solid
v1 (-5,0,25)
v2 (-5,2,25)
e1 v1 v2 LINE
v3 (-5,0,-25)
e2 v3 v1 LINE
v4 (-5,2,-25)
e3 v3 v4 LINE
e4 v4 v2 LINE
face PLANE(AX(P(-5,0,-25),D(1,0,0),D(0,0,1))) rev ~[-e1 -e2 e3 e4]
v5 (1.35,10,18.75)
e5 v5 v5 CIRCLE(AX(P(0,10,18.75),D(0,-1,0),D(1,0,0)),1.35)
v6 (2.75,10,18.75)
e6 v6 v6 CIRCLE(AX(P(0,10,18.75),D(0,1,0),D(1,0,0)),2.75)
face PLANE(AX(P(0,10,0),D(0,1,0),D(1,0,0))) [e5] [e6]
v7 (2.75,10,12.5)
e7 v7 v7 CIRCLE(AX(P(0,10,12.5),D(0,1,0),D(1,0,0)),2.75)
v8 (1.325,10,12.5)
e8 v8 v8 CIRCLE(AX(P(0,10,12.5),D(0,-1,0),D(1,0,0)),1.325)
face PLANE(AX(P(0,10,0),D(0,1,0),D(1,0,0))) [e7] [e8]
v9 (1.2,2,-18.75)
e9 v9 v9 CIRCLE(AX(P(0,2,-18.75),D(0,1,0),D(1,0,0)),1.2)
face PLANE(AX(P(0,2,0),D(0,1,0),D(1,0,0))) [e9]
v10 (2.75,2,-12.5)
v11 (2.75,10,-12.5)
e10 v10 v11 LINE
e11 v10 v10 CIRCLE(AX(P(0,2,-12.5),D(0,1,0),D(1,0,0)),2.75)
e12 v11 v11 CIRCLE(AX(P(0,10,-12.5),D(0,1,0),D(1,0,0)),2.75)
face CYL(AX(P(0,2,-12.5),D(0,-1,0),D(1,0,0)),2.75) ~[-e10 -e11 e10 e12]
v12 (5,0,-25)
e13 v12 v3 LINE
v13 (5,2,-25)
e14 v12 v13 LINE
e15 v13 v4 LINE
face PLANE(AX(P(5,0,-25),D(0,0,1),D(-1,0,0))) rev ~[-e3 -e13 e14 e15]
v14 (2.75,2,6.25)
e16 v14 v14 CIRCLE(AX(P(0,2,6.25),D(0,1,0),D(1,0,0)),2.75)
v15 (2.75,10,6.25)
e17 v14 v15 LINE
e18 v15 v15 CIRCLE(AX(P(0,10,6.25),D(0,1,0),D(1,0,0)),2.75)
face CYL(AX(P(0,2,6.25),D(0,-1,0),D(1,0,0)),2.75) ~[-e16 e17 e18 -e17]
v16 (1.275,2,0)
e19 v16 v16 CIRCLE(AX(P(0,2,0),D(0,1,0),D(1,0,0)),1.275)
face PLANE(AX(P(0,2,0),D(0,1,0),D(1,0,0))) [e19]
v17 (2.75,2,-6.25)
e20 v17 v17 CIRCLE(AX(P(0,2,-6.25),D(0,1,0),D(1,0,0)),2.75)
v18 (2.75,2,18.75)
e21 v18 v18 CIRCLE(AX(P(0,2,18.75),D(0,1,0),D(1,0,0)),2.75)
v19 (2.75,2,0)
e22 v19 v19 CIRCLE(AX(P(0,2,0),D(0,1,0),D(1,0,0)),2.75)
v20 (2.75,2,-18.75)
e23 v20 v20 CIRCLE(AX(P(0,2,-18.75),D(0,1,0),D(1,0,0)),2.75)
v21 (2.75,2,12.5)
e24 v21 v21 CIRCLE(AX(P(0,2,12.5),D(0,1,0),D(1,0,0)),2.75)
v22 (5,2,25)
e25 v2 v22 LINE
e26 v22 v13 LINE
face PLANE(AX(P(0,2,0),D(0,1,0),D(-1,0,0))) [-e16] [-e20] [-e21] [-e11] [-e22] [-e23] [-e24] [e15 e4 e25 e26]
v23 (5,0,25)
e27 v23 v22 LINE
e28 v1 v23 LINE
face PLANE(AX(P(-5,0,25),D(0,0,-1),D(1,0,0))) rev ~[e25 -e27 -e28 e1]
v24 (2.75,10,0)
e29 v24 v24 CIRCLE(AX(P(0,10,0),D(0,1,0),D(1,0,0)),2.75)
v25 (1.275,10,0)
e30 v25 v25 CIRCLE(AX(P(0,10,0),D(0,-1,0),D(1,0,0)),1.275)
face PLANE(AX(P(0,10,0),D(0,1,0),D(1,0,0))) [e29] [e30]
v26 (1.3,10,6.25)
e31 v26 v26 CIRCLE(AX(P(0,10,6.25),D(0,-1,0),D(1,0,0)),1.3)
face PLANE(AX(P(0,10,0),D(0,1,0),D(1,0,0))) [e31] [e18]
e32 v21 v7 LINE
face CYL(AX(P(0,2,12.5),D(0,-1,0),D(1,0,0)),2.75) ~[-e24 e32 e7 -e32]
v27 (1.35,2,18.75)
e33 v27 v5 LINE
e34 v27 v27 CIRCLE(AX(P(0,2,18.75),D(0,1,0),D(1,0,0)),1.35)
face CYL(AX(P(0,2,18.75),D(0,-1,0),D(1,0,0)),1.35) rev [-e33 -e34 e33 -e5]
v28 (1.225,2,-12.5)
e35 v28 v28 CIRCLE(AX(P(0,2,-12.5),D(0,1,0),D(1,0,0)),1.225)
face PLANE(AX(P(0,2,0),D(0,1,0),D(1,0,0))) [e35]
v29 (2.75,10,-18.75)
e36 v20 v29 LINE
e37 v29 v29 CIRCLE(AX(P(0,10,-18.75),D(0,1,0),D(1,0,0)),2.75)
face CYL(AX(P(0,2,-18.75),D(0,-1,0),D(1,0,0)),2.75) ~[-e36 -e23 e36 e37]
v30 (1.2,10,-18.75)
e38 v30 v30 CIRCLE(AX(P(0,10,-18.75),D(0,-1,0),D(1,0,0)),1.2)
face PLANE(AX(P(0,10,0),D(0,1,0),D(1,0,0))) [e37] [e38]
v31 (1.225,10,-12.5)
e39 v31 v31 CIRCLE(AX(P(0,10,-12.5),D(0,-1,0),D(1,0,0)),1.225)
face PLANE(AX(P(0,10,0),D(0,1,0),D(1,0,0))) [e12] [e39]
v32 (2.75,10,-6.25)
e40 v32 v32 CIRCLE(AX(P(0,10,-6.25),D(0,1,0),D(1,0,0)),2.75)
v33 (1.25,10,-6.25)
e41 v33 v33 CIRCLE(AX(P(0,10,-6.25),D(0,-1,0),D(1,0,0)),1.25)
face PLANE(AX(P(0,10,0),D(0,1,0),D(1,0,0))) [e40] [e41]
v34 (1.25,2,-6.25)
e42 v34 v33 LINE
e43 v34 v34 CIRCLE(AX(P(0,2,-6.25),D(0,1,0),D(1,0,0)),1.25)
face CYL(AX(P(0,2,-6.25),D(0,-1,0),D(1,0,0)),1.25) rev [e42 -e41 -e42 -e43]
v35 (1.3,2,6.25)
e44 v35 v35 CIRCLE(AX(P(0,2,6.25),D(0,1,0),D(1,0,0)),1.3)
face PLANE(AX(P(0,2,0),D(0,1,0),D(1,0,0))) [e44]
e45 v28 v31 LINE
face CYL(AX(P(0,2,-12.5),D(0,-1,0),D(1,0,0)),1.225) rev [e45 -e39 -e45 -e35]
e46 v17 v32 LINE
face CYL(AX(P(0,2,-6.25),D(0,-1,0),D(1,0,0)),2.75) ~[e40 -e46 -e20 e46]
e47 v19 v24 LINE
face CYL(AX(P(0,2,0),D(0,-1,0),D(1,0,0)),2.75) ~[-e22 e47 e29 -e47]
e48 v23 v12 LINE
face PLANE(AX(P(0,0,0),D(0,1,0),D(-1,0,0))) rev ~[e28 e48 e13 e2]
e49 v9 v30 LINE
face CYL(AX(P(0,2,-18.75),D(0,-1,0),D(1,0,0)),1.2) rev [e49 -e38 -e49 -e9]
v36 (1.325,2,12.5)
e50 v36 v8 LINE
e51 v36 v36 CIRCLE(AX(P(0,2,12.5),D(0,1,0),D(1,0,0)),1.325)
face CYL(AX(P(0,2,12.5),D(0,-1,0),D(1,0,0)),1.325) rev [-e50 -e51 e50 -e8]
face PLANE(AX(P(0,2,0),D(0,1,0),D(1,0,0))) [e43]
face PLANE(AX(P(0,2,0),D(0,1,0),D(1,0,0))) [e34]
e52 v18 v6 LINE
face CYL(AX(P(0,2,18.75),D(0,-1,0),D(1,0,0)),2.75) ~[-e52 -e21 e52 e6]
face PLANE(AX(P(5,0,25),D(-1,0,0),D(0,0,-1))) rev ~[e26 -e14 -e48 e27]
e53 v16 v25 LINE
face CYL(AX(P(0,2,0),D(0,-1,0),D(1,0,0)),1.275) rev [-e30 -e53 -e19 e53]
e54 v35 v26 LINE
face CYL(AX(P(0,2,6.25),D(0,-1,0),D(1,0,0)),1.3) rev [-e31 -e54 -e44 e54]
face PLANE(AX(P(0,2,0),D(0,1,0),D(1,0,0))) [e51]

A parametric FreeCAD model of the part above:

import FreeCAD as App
import Part
import Sketcher
from FreeCAD import Vector


def add_polygon(sketch, points):
    """Adds a closed chain of lines whose ends are joined by coincident constraints."""
    first, n = sketch.GeometryCount, len(points)
    for a, b in zip(points, points[1:] + points[:1]):
        sketch.addGeometry(Part.LineSegment(App.Vector(*a, 0), App.Vector(*b, 0)), False)
    for i in range(n):
        sketch.addConstraint(Sketcher.Constraint("Coincident", first + i, 2, first + (i + 1) % n, 1))

doc = App.newDocument("Part")
body = doc.addObject("PartDesign::Body", "Body")

# Sketch on XZ plane
sketch1 = body.newObject("Sketcher::SketchObject", "Sketch")
sketch1.AttachmentSupport = (doc.getObject("XZ_Plane"), [""])
sketch1.MapMode = "FlatFace"
add_polygon(sketch1, [(-5, -25), (-5, 25), (5, 25), (5, -25)])  # lines 0-3
sketch1.addConstraint([
    Sketcher.Constraint("Vertical", 0),
    Sketcher.Constraint("Horizontal", 1),
    Sketcher.Constraint("Vertical", 2),
    Sketcher.Constraint("Horizontal", 3),
    Sketcher.Constraint("Symmetric", 0, 2, 2, 2, -1, 1),
    Sketcher.Constraint("DistanceX", 1, 1, 1, 2, 10.0),
    Sketcher.Constraint("DistanceY", 0, 1, 0, 2, 50.0),
])
pad1 = body.newObject("PartDesign::Pad", "Pad")
pad1.Profile = sketch1
pad1.Length = 2
pad1.Reversed = True

# Sketch on XZ plane
sketch2 = body.newObject("Sketcher::SketchObject", "Sketch001")
sketch2.AttachmentSupport = (doc.getObject("XZ_Plane"), [""])
sketch2.MapMode = "FlatFace"
sketch2.AttachmentOffset = App.Placement(Vector(0, 0, -2), App.Rotation())
sketch2.addGeometry([
    Part.Circle(Vector(0, -18.8, 0), Vector(0, 0, 1), 2.8),  # 0
    Part.Circle(Vector(0, -12.5, 0), Vector(0, 0, 1), 2.8),  # 1
    Part.Circle(Vector(0, -6.2, 0), Vector(0, 0, 1), 2.8),  # 2
    Part.Circle(Vector(0, 0, 0), Vector(0, 0, 1), 2.8),  # 3
    Part.Circle(Vector(0, 6.2, 0), Vector(0, 0, 1), 2.8),  # 4
    Part.Circle(Vector(0, 12.5, 0), Vector(0, 0, 1), 2.8),  # 5
    Part.Circle(Vector(0, 18.8, 0), Vector(0, 0, 1), 2.8),  # 6
], False)
sketch2.addConstraint([
    Sketcher.Constraint("Coincident", 3, 3, -1, 1),
    Sketcher.Constraint("Equal", 0, 1),
    Sketcher.Constraint("Equal", 1, 2),
    Sketcher.Constraint("Equal", 2, 3),
    Sketcher.Constraint("Equal", 3, 4),
    Sketcher.Constraint("Equal", 4, 5),
    Sketcher.Constraint("Equal", 5, 6),
    Sketcher.Constraint("Symmetric", 2, 3, 4, 3, -1, 1),
    Sketcher.Constraint("Symmetric", 1, 3, 5, 3, -1, 1),
    Sketcher.Constraint("Symmetric", 0, 3, 6, 3, -1, 1),
    Sketcher.Constraint("PointOnObject", 0, 3, -2),
    Sketcher.Constraint("PointOnObject", 1, 3, -2),
    Sketcher.Constraint("PointOnObject", 2, 3, -2),
    Sketcher.Constraint("Diameter", 0, 5.5),
    Sketcher.Constraint("DistanceY", 2, 3, -1, 1, 6.25),
    Sketcher.Constraint("DistanceY", 0, 3, 1, 3, 6.25),
    Sketcher.Constraint("DistanceY", 1, 3, 2, 3, 6.25),
])
pad2 = body.newObject("PartDesign::Pad", "Pad001")
pad2.Profile = sketch2
pad2.Length = 8
pad2.Reversed = True

# Sketch on XZ plane
sketch3 = body.newObject("Sketcher::SketchObject", "Sketch002")
sketch3.AttachmentSupport = (doc.getObject("XZ_Plane"), [""])
sketch3.MapMode = "FlatFace"
sketch3.AttachmentOffset = App.Placement(Vector(0, 0, -2), App.Rotation())
sketch3.addGeometry([
    Part.Circle(Vector(0, -18.8, 0), Vector(0, 0, 1), 1.2),  # 0
    Part.Circle(Vector(0, 18.8, 0), Vector(0, 0, 1), 1.4),  # 1
    Part.Circle(Vector(0, 12.5, 0), Vector(0, 0, 1), 1.3),  # 2
    Part.Circle(Vector(0, 6.2, 0), Vector(0, 0, 1), 1.3),  # 3
    Part.Circle(Vector(0, 0, 0), Vector(0, 0, 1), 1.3),  # 4
    Part.Circle(Vector(0, -6.2, 0), Vector(0, 0, 1), 1.2),  # 5
    Part.Circle(Vector(0, -12.5, 0), Vector(0, 0, 1), 1.2),  # 6
], False)
sketch3.addConstraint([
    Sketcher.Constraint("Coincident", 4, 3, -1, 1),
    Sketcher.Constraint("Symmetric", 0, 3, 1, 3, -1, 1),
    Sketcher.Constraint("Symmetric", 3, 3, 5, 3, -1, 1),
    Sketcher.Constraint("Symmetric", 2, 3, 6, 3, -1, 1),
    Sketcher.Constraint("PointOnObject", 0, 3, -2),
    Sketcher.Constraint("PointOnObject", 2, 3, -2),
    Sketcher.Constraint("PointOnObject", 3, 3, -2),
    Sketcher.Constraint("Diameter", 0, 2.4),
    Sketcher.Constraint("Diameter", 1, 2.7),
    Sketcher.Constraint("Diameter", 3, 2.6),
    Sketcher.Constraint("Diameter", 5, 2.5),
    Sketcher.Constraint("Diameter", 2, 2.65),
    Sketcher.Constraint("Diameter", 4, 2.55),
    Sketcher.Constraint("Diameter", 6, 2.45),
    Sketcher.Constraint("DistanceY", -1, 1, 3, 3, 6.25),
    Sketcher.Constraint("DistanceY", 2, 3, 1, 3, 6.25),
    Sketcher.Constraint("DistanceY", 3, 3, 2, 3, 6.25),
])
pocket1 = body.newObject("PartDesign::Pocket", "Pocket")
pocket1.Profile = sketch3
pocket1.Length = 8

doc.recompute()
